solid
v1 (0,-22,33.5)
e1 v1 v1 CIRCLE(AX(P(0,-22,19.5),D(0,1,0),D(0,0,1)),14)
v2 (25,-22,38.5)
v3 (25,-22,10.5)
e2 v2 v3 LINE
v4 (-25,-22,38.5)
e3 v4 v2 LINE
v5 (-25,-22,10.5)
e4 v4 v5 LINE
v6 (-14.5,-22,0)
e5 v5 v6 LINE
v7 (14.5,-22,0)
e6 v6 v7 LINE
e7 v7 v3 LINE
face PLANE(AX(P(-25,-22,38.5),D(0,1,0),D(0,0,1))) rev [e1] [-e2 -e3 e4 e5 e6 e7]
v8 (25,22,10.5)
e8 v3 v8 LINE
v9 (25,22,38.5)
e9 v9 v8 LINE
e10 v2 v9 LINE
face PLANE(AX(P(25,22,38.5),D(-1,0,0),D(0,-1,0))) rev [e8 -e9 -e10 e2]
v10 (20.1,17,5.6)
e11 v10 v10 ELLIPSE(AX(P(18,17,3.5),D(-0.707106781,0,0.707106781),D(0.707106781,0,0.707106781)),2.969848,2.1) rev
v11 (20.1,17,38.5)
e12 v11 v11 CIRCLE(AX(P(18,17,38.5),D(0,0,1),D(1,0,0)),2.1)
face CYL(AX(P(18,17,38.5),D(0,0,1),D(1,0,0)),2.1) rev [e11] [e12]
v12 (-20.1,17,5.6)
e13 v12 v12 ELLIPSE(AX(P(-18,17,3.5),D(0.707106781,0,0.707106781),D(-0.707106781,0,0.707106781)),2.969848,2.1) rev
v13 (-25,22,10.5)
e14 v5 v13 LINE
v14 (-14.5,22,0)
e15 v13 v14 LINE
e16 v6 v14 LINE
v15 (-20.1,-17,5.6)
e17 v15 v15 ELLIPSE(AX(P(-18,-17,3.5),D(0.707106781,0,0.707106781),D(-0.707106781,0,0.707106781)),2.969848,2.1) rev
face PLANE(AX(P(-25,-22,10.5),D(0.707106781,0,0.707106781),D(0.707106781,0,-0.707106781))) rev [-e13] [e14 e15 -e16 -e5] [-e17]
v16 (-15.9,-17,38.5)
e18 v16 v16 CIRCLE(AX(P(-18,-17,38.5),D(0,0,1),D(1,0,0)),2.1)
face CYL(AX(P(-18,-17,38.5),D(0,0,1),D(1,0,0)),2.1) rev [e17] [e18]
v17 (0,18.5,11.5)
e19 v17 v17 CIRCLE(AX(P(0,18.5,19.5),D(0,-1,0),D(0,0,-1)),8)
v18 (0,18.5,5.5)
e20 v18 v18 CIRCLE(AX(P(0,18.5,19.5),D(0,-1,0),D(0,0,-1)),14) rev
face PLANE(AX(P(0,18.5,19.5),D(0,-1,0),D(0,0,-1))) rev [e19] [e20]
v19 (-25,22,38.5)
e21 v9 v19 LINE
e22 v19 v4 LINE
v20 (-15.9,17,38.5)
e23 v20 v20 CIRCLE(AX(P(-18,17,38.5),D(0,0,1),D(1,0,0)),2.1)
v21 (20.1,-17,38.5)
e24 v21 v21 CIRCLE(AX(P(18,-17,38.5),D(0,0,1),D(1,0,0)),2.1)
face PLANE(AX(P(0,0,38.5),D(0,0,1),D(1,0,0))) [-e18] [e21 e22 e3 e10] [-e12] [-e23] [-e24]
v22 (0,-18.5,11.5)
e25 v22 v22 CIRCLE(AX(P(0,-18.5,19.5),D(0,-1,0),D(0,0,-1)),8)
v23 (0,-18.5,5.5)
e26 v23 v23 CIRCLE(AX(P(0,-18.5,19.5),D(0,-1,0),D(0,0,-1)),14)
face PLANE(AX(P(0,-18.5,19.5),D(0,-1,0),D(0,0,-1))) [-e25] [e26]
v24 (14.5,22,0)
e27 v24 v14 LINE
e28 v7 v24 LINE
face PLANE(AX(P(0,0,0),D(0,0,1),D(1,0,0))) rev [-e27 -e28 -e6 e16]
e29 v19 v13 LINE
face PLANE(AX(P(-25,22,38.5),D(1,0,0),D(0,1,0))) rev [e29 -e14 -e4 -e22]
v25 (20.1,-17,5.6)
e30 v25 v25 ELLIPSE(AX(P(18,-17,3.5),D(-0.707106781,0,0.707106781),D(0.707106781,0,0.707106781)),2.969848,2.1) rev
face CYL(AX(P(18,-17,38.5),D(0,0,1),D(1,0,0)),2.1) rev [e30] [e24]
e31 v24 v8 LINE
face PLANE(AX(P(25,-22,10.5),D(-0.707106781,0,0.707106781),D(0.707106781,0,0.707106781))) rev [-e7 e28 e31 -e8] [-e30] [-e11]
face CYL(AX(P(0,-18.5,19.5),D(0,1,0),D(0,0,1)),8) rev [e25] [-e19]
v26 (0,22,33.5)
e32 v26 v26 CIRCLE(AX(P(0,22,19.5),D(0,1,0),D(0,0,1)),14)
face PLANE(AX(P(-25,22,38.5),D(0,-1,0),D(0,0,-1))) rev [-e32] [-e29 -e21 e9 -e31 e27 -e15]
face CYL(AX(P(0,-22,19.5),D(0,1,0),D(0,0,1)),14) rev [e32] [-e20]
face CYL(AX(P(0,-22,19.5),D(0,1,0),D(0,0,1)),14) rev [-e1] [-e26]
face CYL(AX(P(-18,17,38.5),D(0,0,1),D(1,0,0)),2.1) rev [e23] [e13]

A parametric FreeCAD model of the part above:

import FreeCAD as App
import Part
import Sketcher


def add_polygon(sketch, points):
    """Adds a closed chain of lines whose ends are joined by coincident constraints."""
    first, n = sketch.GeometryCount, len(points)
    for a, b in zip(points, points[1:] + points[:1]):
        sketch.addGeometry(Part.LineSegment(App.Vector(*a, 0), App.Vector(*b, 0)), False)
    for i in range(n):
        sketch.addConstraint(Sketcher.Constraint("Coincident", first + i, 2, first + (i + 1) % n, 1))

doc = App.newDocument("Part")
params = doc.addObject("Spreadsheet::Sheet", "Params")
for row, (alias, value) in enumerate([
    ("sketch1_width", "50 mm"),
    ("sketch1_height", "44 mm"),
    ("pad1_length", "38.5 mm"),
    ("sketch2_diameter", "4.2 mm"),
    ("hole_diameter", "4.2 mm"),
    ("sketch3_diameter", "28 mm"),
    ("sketch3_width", "10.5 mm"),
    ("sketch4_diameter", "28 mm"),
    ("sketch4_diameter2", "16 mm"),
    ("pad2_length", "37 mm"),
], start=1):
    params.set(f"A{row}", alias)
    params.set(f"B{row}", "=" + value)
    params.setAlias(f"B{row}", alias)

body = doc.addObject("PartDesign::Body", "Body")

# Sketch on XY plane
sketch1 = body.newObject("Sketcher::SketchObject", "Sketch")
sketch1.AttachmentSupport = (doc.getObject("XY_Plane"), [""])
sketch1.MapMode = "FlatFace"
add_polygon(sketch1, [(-25, 22), (-25, -22), (25, -22), (25, 22)])  # lines 0-3
sketch1.addConstraint(Sketcher.Constraint("Vertical", 0))
sketch1.addConstraint(Sketcher.Constraint("Horizontal", 1))
sketch1.addConstraint(Sketcher.Constraint("Vertical", 2))
sketch1.addConstraint(Sketcher.Constraint("Horizontal", 3))
sketch1.addConstraint(Sketcher.Constraint("Symmetric", 0, 2, 2, 2, -1, 1))
sketch1.addConstraint(Sketcher.Constraint("DistanceX", 1, 1, 1, 2, 50.0))
sketch1.addConstraint(Sketcher.Constraint("DistanceY", 0, 2, 0, 1, 44.0))
sketch1.setExpression("Constraints[9]", "Params.sketch1_width")
sketch1.setExpression("Constraints[10]", "Params.sketch1_height")
pad1 = body.newObject("PartDesign::Pad", "Pad")
pad1.Profile = sketch1
pad1.setExpression("Length", "Params.pad1_length")

# Sketch on XY plane
sketch2 = body.newObject("Sketcher::SketchObject", "Sketch001")
sketch2.AttachmentSupport = (doc.getObject("XY_Plane"), [""])
sketch2.MapMode = "FlatFace"
sketch2.AttachmentOffset = App.Placement(App.Vector(0, 0, 38.5), App.Rotation())
sketch2.addGeometry(Part.Circle(App.Vector(-18, 17, 0), App.Vector(0, 0, 1), 2.1), False)
sketch2.addGeometry(Part.Circle(App.Vector(18, 17, 0), App.Vector(0, 0, 1), 2.1), False)
sketch2.addGeometry(Part.Circle(App.Vector(18, -17, 0), App.Vector(0, 0, 1), 2.1), False)
sketch2.addGeometry(Part.Circle(App.Vector(-18, -17, 0), App.Vector(0, 0, 1), 2.1), False)
sketch2.addConstraint(Sketcher.Constraint("Equal", 0, 1))
sketch2.addConstraint(Sketcher.Constraint("Equal", 1, 2))
sketch2.addConstraint(Sketcher.Constraint("Equal", 2, 3))
sketch2.addConstraint(Sketcher.Constraint("Symmetric", 0, 3, 2, 3, -1, 1))
sketch2.addConstraint(Sketcher.Constraint("Symmetric", 1, 3, 3, 3, -1, 1))
sketch2.addConstraint(Sketcher.Constraint("Symmetric", 0, 3, 1, 3, -2))
sketch2.addConstraint(Sketcher.Constraint("Diameter", 0, 4.2))
sketch2.addConstraint(Sketcher.Constraint("DistanceX", 0, 3, -1, 1, 18.0))
sketch2.addConstraint(Sketcher.Constraint("DistanceY", -1, 1, 0, 3, 17.0))
sketch2.setExpression("Constraints[6]", "Params.sketch2_diameter")
doc.recompute()
hole = body.newObject("PartDesign::Hole", "Hole")
hole.Profile = sketch2
hole.ThreadType = "None"
hole.setExpression("Diameter", "Params.hole_diameter")
hole.DepthType = "ThroughAll"

# Sketch on XZ plane
sketch3 = body.newObject("Sketcher::SketchObject", "Sketch002")
sketch3.AttachmentSupport = (doc.getObject("XZ_Plane"), [""])
sketch3.MapMode = "FlatFace"
sketch3.AttachmentOffset = App.Placement(App.Vector(0, 0, -22), App.Rotation())
sketch3.addGeometry(Part.Circle(App.Vector(0, 20, 0), App.Vector(0, 0, 1), 14), False)  # 0
add_polygon(sketch3, [(-25, 10), (-14, 0), (-25, 0)])  # lines 1-3
add_polygon(sketch3, [(14, 0), (25, 10), (25, 0)])  # lines 4-6
sketch3.addConstraint(Sketcher.Constraint("Horizontal", 2))
sketch3.addConstraint(Sketcher.Constraint("Vertical", 3))
sketch3.addConstraint(Sketcher.Constraint("Vertical", 5))
sketch3.addConstraint(Sketcher.Constraint("Horizontal", 6))
sketch3.addConstraint(Sketcher.Constraint("Symmetric", 2, 2, 5, 2, -1, 1))
sketch3.addConstraint(Sketcher.Constraint("Symmetric", 1, 2, 6, 2, -2))
sketch3.addConstraint(Sketcher.Constraint("PointOnObject", 0, 3, -2))
sketch3.addConstraint(Sketcher.Constraint("Perpendicular", 1, 4))
sketch3.addConstraint(Sketcher.Constraint("Horizontal", 3, 2, 4, 2))
sketch3.addConstraint(Sketcher.Constraint("Diameter", 0, 28.0))
sketch3.addConstraint(Sketcher.Constraint("DistanceX", 2, 2, 2, 1, 10.5))
sketch3.addConstraint(Sketcher.Constraint("DistanceX", 2, 2, -1, 1, 25.0))
sketch3.addConstraint(Sketcher.Constraint("DistanceY", 3, 2, 0, 3, 9.0))
sketch3.setExpression("Constraints[15]", "Params.sketch3_diameter")
sketch3.setExpression("Constraints[16]", "Params.sketch3_width")
pocket1 = body.newObject("PartDesign::Pocket", "Pocket")
pocket1.Profile = sketch3
pocket1.Type = "ThroughAll"
pocket1.Reversed = True

# Sketch on XZ plane
sketch4 = body.newObject("Sketcher::SketchObject", "Sketch003")
sketch4.AttachmentSupport = (doc.getObject("XZ_Plane"), [""])
sketch4.MapMode = "FlatFace"
sketch4.addGeometry(Part.Circle(App.Vector(0, 20, 0), App.Vector(0, 0, 1), 14), False)
sketch4.addGeometry(Part.Circle(App.Vector(0, 20, 0), App.Vector(0, 0, 1), 8), False)
sketch4.addConstraint(Sketcher.Constraint("Coincident", 1, 3, 0, 3))
sketch4.addConstraint(Sketcher.Constraint("PointOnObject", 0, 3, -2))
sketch4.addConstraint(Sketcher.Constraint("Diameter", 0, 28.0))
sketch4.addConstraint(Sketcher.Constraint("Diameter", 1, 16.0))
sketch4.addConstraint(Sketcher.Constraint("DistanceY", -1, 1, 0, 3, 19.5))
sketch4.setExpression("Constraints[2]", "Params.sketch4_diameter")
sketch4.setExpression("Constraints[3]", "Params.sketch4_diameter2")
pad2 = body.newObject("PartDesign::Pad", "Pad001")
pad2.Profile = sketch4
pad2.setExpression("Length", "Params.pad2_length")
pad2.Midplane = True

doc.recompute()
